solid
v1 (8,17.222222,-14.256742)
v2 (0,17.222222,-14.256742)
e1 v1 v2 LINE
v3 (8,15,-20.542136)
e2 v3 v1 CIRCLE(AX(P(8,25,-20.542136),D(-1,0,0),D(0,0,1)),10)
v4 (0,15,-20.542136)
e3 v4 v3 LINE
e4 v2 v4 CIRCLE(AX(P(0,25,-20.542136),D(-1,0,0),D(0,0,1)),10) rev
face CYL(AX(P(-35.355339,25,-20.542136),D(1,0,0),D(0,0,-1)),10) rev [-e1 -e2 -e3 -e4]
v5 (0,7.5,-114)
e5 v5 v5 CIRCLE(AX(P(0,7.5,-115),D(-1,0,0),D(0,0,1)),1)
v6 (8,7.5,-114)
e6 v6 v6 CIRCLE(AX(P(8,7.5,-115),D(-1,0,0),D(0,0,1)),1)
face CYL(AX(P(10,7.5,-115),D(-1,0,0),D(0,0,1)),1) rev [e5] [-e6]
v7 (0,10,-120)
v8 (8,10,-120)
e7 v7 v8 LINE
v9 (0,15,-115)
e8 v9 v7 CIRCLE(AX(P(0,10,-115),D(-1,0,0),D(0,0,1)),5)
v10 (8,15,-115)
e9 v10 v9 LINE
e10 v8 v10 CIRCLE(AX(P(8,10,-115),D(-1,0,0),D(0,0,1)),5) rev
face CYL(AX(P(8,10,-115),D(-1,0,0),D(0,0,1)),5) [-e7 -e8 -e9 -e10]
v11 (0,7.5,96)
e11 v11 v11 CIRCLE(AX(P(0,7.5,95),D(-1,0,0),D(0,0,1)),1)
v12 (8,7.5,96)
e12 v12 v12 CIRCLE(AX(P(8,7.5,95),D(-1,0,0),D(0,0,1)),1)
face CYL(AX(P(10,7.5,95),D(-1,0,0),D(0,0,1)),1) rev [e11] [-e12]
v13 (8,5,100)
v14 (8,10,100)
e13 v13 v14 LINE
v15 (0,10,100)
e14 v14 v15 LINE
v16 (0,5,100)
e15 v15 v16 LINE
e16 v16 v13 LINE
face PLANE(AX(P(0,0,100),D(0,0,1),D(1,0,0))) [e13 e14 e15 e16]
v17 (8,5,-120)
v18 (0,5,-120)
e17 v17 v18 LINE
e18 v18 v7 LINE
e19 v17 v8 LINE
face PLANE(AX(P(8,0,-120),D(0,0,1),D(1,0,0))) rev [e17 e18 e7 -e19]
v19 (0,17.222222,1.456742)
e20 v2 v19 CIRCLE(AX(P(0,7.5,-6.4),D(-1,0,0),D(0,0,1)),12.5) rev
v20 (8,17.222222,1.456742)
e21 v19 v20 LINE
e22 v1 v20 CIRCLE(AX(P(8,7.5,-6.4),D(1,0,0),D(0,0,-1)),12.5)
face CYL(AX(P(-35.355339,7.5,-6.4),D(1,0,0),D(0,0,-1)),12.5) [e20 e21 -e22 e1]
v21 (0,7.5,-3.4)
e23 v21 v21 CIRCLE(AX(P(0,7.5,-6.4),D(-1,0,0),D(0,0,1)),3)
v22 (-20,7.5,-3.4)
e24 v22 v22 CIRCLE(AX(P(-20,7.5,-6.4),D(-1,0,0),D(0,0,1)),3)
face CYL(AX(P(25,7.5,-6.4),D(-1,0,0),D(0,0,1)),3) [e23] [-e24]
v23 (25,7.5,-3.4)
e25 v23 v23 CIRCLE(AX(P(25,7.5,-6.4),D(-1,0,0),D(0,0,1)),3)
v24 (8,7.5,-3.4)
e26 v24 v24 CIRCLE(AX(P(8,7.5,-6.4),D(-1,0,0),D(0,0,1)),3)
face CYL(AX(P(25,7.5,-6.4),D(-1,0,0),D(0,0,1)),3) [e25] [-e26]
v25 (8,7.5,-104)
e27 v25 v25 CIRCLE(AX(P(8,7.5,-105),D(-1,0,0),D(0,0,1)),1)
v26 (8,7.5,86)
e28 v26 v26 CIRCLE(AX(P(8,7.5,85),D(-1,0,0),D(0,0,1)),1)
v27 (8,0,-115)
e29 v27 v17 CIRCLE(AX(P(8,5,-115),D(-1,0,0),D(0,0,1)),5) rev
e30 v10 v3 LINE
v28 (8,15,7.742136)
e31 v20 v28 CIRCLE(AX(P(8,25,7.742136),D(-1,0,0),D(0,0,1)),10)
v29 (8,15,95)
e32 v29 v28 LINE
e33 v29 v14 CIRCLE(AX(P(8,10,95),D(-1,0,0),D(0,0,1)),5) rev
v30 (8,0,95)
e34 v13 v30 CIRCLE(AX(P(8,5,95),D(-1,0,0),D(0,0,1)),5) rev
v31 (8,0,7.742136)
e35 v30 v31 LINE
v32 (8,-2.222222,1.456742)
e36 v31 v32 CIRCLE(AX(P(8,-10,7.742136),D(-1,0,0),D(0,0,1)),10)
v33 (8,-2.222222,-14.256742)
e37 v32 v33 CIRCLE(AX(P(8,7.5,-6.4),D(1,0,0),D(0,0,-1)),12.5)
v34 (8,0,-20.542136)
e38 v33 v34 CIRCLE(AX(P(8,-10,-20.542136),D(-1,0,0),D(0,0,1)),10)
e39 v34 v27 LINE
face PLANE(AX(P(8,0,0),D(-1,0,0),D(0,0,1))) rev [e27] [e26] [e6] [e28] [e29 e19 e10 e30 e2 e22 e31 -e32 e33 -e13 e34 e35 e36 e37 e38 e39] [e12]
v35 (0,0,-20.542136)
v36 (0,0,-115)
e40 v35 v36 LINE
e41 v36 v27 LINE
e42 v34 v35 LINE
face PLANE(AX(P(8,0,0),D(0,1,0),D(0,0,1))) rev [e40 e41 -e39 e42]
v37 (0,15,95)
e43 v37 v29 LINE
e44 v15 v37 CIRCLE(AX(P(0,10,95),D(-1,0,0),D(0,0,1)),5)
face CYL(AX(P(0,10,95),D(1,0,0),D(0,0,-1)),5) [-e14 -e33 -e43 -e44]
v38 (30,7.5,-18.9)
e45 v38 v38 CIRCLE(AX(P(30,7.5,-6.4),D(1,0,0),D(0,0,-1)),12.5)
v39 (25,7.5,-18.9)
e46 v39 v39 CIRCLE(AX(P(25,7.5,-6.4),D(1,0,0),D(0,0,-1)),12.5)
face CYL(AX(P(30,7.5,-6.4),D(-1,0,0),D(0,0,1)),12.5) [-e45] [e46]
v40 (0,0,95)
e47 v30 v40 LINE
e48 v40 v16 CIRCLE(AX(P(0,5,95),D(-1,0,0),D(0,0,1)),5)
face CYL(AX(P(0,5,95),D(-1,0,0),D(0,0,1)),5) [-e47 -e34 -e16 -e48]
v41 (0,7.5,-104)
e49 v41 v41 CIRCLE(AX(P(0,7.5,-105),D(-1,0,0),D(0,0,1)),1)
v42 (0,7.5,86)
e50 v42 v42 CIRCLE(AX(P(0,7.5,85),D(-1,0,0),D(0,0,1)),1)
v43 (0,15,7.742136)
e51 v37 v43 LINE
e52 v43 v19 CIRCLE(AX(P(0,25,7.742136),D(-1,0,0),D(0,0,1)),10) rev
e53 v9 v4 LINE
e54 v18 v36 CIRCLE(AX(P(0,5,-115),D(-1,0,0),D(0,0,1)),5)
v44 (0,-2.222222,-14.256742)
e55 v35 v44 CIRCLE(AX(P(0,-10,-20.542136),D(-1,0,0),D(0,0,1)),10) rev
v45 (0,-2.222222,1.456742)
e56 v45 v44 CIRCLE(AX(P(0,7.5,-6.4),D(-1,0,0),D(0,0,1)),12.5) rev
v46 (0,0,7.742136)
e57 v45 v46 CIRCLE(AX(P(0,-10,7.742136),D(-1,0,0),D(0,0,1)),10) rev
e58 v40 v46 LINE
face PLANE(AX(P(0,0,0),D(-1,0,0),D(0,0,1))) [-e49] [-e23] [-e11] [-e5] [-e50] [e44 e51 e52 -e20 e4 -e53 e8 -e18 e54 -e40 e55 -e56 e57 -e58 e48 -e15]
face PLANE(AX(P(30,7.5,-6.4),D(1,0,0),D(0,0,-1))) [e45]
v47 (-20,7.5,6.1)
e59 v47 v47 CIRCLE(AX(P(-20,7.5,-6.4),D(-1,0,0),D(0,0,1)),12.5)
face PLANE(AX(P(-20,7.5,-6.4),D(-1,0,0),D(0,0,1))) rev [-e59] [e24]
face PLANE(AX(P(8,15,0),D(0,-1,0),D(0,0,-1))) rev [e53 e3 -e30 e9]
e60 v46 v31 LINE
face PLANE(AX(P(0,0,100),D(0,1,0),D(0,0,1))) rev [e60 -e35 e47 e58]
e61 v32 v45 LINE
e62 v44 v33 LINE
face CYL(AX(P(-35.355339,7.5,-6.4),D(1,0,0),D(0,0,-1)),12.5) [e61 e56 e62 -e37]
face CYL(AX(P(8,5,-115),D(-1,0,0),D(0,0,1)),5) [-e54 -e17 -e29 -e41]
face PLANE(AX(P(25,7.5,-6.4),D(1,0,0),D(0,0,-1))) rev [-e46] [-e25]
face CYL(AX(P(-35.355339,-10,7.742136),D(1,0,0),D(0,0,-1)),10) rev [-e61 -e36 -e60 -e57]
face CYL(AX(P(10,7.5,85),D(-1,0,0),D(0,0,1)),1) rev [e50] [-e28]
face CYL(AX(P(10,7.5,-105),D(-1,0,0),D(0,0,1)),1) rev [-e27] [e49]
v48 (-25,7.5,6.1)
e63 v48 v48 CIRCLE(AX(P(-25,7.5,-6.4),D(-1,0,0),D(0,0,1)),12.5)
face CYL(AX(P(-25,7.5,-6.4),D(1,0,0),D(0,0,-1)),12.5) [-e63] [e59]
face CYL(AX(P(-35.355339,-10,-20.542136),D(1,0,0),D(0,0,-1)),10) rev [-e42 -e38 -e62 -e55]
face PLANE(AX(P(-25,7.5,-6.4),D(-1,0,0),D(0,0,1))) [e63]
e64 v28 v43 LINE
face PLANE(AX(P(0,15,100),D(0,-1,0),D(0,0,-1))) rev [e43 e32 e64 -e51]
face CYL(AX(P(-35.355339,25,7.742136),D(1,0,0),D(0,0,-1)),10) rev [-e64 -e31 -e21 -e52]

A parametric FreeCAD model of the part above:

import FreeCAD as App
import Part
import Sketcher
from FreeCAD import Vector


def edges_at(feature, points):
    """Names of the edges that pass closest to the given points."""
    edges = feature.Shape.Edges
    near = lambda p: min(range(len(edges)), key=lambda i: edges[i].distToShape(Part.Vertex(*p))[0])
    return sorted({f"Edge{near(p) + 1}" for p in points})


def add_polygon(sketch, points):
    """Adds a closed chain of lines whose ends are joined by coincident constraints."""
    first, n = sketch.GeometryCount, len(points)
    for a, b in zip(points, points[1:] + points[:1]):
        sketch.addGeometry(Part.LineSegment(App.Vector(*a, 0), App.Vector(*b, 0)), False)
    for i in range(n):
        sketch.addConstraint(Sketcher.Constraint("Coincident", first + i, 2, first + (i + 1) % n, 1))

doc = App.newDocument("Part")
body = doc.addObject("PartDesign::Body", "Body")

# Sketch on YZ plane
sketch1 = doc.addObject("Sketcher::SketchObject", "Sketch")
body.addObject(sketch1)
sketch1.AttachmentSupport = (doc.YZ_Plane, [""])
sketch1.MapMode = "FlatFace"
add_polygon(sketch1, [(15, 0), (0, 0), (0, -120), (15, -120)])  # lines 0-3
sketch1.addConstraint([
    Sketcher.Constraint("Horizontal", 0),
    Sketcher.Constraint("Vertical", 1),
    Sketcher.Constraint("Horizontal", 2),
    Sketcher.Constraint("Vertical", 3),
    Sketcher.Constraint("Coincident", 0, 2, -1, 1),
    Sketcher.Constraint("DistanceX", 0, 2, 0, 1, 15.0),
    Sketcher.Constraint("DistanceY", 1, 2, 1, 1, 120.0),
])
pad1 = doc.addObject("PartDesign::Pad", "Pad")
body.addObject(pad1)
pad1.Profile = sketch1
pad1.Length = 8
doc.recompute()

fillet = doc.addObject("PartDesign::Fillet", "Fillet")
body.addObject(fillet)
fillet.Base = (pad1, edges_at(pad1, [
    (4, 15, 0),
    (4, 15, -120),
    (4, 0, -120),
    (4, 0, 0),
]))
fillet.Radius = 5

# Sketch on YZ plane
sketch2 = doc.addObject("Sketcher::SketchObject", "Sketch001")
body.addObject(sketch2)
sketch2.AttachmentSupport = (doc.YZ_Plane, [""])
sketch2.MapMode = "FlatFace"
sketch2.AttachmentOffset = App.Placement(Vector(0, 0, 8), App.Rotation())
sketch2.addGeometry(Part.Circle(Vector(7.5, -6.4, 0), Vector(0, 0, 1), 12.5), False)
sketch2.addConstraint([
    Sketcher.Constraint("Diameter", 0, 25.0),
    Sketcher.Constraint("DistanceX", -1, 1, 0, 3, 7.5),
    Sketcher.Constraint("DistanceY", 0, 3, -1, 1, 6.4),
])
pad2 = doc.addObject("PartDesign::Pad", "Pad001")
body.addObject(pad2)
pad2.Profile = sketch2
pad2.Length = 8
pad2.Reversed = True

# Sketch on XY plane
sketch3 = doc.addObject("Sketcher::SketchObject", "Sketch002")
body.addObject(sketch3)
sketch3.AttachmentSupport = (doc.XY_Plane, [""])
sketch3.MapMode = "FlatFace"
add_polygon(sketch3, [(0, 15), (0, 0), (8, 0), (8, 15)])  # lines 0-3
sketch3.addConstraint([
    Sketcher.Constraint("Vertical", 0),
    Sketcher.Constraint("Horizontal", 1),
    Sketcher.Constraint("Vertical", 2),
    Sketcher.Constraint("Horizontal", 3),
    Sketcher.Constraint("Coincident", 0, 2, -1, 1),
    Sketcher.Constraint("DistanceX", 1, 1, 1, 2, 8.0),
    Sketcher.Constraint("DistanceY", 0, 2, 0, 1, 15.0),
])
pad3 = doc.addObject("PartDesign::Pad", "Pad002")
body.addObject(pad3)
pad3.Profile = sketch3
pad3.Length = 100
doc.recompute()

fillet2 = doc.addObject("PartDesign::Fillet", "Fillet001")
body.addObject(fillet2)
fillet2.Base = (pad3, edges_at(pad3, [
    (4, 0, -16.4),
    (4, 15, -16.4),
    (4, 15, 3.6),
    (4, 0, 3.6),
]))
fillet2.Radius = 10
doc.recompute()

fillet3 = doc.addObject("PartDesign::Fillet", "Fillet002")
body.addObject(fillet3)
fillet3.Base = (fillet2, edges_at(fillet2, [(4, 0, 100), (4, 15, 100)]))
fillet3.Radius = 5

# Sketch on YZ plane
sketch4 = doc.addObject("Sketcher::SketchObject", "Sketch003")
body.addObject(sketch4)
sketch4.AttachmentSupport = (doc.YZ_Plane, [""])
sketch4.MapMode = "FlatFace"
sketch4.addGeometry([
    Part.Circle(Vector(7.5, -115, 0), Vector(0, 0, 1), 1),
    Part.Circle(Vector(7.5, -105, 0), Vector(0, 0, 1), 1),
    Part.Circle(Vector(7.5, 85, 0), Vector(0, 0, 1), 1),
    Part.Circle(Vector(7.5, 95, 0), Vector(0, 0, 1), 1),
], False)
sketch4.addConstraint([
    Sketcher.Constraint("Equal", 0, 1),
    Sketcher.Constraint("Equal", 1, 2),
    Sketcher.Constraint("Equal", 2, 3),
    Sketcher.Constraint("Vertical", 0, 3, 1, 3),
    Sketcher.Constraint("Vertical", 1, 3, 2, 3),
    Sketcher.Constraint("Vertical", 2, 3, 3, 3),
    Sketcher.Constraint("Diameter", 0, 2.0),
    Sketcher.Constraint("DistanceY", 0, 3, -1, 1, 115.0),
    Sketcher.Constraint("DistanceY", 1, 3, -1, 1, 105.0),
    Sketcher.Constraint("DistanceY", -1, 1, 2, 3, 85.0),
    Sketcher.Constraint("DistanceY", -1, 1, 3, 3, 95.0),
    Sketcher.Constraint("DistanceX", -1, 1, 0, 3, 7.5),
])
pocket1 = doc.addObject("PartDesign::Pocket", "Pocket")
body.addObject(pocket1)
pocket1.Profile = sketch4
pocket1.Length = 10
pocket1.Reversed = True

# Sketch on YZ plane
sketch5 = doc.addObject("Sketcher::SketchObject", "Sketch004")
body.addObject(sketch5)
sketch5.AttachmentSupport = (doc.YZ_Plane, [""])
sketch5.MapMode = "FlatFace"
sketch5.addGeometry(Part.Circle(Vector(7.5, -6.4, 0), Vector(0, 0, 1), 3), False)
sketch5.addConstraint([
    Sketcher.Constraint("Diameter", 0, 6.0),
    Sketcher.Constraint("DistanceX", -1, 1, 0, 3, 7.5),
    Sketcher.Constraint("DistanceY", 0, 3, -1, 1, 6.4),
])
pad4 = doc.addObject("PartDesign::Pad", "Pad003")
body.addObject(pad4)
pad4.Profile = sketch5
pad4.Type = "TwoLengths"
pad4.Length = 20
pad4.Length2 = 25
pad4.Reversed = True

# Sketch on YZ plane
sketch6 = doc.addObject("Sketcher::SketchObject", "Sketch005")
body.addObject(sketch6)
sketch6.AttachmentSupport = (doc.YZ_Plane, [""])
sketch6.MapMode = "FlatFace"
sketch6.AttachmentOffset = App.Placement(Vector(0, 0, -20), App.Rotation())
sketch6.addGeometry(Part.Circle(Vector(7.5, -6.4, 0), Vector(0, 0, 1), 12.5), False)
sketch6.addConstraint([
    Sketcher.Constraint("Diameter", 0, 25.0),
    Sketcher.Constraint("DistanceX", -1, 1, 0, 3, 7.5),
    Sketcher.Constraint("DistanceY", 0, 3, -1, 1, 6.4),
])
pad5 = doc.addObject("PartDesign::Pad", "Pad004")
body.addObject(pad5)
pad5.Profile = sketch6
pad5.Length = 5
pad5.Reversed = True

# Sketch on YZ plane
sketch7 = doc.addObject("Sketcher::SketchObject", "Sketch006")
body.addObject(sketch7)
sketch7.AttachmentSupport = (doc.YZ_Plane, [""])
sketch7.MapMode = "FlatFace"
sketch7.AttachmentOffset = App.Placement(Vector(0, 0, 30), App.Rotation())
sketch7.addGeometry(Part.Circle(Vector(7.5, -6.4, 0), Vector(0, 0, 1), 12.5), False)
sketch7.addConstraint([
    Sketcher.Constraint("Diameter", 0, 25.0),
    Sketcher.Constraint("DistanceX", -1, 1, 0, 3, 7.5),
    Sketcher.Constraint("DistanceY", 0, 3, -1, 1, 6.4),
])
pad6 = doc.addObject("PartDesign::Pad", "Pad005")
body.addObject(pad6)
pad6.Profile = sketch7
pad6.Length = 5
pad6.Reversed = True

doc.recompute()
